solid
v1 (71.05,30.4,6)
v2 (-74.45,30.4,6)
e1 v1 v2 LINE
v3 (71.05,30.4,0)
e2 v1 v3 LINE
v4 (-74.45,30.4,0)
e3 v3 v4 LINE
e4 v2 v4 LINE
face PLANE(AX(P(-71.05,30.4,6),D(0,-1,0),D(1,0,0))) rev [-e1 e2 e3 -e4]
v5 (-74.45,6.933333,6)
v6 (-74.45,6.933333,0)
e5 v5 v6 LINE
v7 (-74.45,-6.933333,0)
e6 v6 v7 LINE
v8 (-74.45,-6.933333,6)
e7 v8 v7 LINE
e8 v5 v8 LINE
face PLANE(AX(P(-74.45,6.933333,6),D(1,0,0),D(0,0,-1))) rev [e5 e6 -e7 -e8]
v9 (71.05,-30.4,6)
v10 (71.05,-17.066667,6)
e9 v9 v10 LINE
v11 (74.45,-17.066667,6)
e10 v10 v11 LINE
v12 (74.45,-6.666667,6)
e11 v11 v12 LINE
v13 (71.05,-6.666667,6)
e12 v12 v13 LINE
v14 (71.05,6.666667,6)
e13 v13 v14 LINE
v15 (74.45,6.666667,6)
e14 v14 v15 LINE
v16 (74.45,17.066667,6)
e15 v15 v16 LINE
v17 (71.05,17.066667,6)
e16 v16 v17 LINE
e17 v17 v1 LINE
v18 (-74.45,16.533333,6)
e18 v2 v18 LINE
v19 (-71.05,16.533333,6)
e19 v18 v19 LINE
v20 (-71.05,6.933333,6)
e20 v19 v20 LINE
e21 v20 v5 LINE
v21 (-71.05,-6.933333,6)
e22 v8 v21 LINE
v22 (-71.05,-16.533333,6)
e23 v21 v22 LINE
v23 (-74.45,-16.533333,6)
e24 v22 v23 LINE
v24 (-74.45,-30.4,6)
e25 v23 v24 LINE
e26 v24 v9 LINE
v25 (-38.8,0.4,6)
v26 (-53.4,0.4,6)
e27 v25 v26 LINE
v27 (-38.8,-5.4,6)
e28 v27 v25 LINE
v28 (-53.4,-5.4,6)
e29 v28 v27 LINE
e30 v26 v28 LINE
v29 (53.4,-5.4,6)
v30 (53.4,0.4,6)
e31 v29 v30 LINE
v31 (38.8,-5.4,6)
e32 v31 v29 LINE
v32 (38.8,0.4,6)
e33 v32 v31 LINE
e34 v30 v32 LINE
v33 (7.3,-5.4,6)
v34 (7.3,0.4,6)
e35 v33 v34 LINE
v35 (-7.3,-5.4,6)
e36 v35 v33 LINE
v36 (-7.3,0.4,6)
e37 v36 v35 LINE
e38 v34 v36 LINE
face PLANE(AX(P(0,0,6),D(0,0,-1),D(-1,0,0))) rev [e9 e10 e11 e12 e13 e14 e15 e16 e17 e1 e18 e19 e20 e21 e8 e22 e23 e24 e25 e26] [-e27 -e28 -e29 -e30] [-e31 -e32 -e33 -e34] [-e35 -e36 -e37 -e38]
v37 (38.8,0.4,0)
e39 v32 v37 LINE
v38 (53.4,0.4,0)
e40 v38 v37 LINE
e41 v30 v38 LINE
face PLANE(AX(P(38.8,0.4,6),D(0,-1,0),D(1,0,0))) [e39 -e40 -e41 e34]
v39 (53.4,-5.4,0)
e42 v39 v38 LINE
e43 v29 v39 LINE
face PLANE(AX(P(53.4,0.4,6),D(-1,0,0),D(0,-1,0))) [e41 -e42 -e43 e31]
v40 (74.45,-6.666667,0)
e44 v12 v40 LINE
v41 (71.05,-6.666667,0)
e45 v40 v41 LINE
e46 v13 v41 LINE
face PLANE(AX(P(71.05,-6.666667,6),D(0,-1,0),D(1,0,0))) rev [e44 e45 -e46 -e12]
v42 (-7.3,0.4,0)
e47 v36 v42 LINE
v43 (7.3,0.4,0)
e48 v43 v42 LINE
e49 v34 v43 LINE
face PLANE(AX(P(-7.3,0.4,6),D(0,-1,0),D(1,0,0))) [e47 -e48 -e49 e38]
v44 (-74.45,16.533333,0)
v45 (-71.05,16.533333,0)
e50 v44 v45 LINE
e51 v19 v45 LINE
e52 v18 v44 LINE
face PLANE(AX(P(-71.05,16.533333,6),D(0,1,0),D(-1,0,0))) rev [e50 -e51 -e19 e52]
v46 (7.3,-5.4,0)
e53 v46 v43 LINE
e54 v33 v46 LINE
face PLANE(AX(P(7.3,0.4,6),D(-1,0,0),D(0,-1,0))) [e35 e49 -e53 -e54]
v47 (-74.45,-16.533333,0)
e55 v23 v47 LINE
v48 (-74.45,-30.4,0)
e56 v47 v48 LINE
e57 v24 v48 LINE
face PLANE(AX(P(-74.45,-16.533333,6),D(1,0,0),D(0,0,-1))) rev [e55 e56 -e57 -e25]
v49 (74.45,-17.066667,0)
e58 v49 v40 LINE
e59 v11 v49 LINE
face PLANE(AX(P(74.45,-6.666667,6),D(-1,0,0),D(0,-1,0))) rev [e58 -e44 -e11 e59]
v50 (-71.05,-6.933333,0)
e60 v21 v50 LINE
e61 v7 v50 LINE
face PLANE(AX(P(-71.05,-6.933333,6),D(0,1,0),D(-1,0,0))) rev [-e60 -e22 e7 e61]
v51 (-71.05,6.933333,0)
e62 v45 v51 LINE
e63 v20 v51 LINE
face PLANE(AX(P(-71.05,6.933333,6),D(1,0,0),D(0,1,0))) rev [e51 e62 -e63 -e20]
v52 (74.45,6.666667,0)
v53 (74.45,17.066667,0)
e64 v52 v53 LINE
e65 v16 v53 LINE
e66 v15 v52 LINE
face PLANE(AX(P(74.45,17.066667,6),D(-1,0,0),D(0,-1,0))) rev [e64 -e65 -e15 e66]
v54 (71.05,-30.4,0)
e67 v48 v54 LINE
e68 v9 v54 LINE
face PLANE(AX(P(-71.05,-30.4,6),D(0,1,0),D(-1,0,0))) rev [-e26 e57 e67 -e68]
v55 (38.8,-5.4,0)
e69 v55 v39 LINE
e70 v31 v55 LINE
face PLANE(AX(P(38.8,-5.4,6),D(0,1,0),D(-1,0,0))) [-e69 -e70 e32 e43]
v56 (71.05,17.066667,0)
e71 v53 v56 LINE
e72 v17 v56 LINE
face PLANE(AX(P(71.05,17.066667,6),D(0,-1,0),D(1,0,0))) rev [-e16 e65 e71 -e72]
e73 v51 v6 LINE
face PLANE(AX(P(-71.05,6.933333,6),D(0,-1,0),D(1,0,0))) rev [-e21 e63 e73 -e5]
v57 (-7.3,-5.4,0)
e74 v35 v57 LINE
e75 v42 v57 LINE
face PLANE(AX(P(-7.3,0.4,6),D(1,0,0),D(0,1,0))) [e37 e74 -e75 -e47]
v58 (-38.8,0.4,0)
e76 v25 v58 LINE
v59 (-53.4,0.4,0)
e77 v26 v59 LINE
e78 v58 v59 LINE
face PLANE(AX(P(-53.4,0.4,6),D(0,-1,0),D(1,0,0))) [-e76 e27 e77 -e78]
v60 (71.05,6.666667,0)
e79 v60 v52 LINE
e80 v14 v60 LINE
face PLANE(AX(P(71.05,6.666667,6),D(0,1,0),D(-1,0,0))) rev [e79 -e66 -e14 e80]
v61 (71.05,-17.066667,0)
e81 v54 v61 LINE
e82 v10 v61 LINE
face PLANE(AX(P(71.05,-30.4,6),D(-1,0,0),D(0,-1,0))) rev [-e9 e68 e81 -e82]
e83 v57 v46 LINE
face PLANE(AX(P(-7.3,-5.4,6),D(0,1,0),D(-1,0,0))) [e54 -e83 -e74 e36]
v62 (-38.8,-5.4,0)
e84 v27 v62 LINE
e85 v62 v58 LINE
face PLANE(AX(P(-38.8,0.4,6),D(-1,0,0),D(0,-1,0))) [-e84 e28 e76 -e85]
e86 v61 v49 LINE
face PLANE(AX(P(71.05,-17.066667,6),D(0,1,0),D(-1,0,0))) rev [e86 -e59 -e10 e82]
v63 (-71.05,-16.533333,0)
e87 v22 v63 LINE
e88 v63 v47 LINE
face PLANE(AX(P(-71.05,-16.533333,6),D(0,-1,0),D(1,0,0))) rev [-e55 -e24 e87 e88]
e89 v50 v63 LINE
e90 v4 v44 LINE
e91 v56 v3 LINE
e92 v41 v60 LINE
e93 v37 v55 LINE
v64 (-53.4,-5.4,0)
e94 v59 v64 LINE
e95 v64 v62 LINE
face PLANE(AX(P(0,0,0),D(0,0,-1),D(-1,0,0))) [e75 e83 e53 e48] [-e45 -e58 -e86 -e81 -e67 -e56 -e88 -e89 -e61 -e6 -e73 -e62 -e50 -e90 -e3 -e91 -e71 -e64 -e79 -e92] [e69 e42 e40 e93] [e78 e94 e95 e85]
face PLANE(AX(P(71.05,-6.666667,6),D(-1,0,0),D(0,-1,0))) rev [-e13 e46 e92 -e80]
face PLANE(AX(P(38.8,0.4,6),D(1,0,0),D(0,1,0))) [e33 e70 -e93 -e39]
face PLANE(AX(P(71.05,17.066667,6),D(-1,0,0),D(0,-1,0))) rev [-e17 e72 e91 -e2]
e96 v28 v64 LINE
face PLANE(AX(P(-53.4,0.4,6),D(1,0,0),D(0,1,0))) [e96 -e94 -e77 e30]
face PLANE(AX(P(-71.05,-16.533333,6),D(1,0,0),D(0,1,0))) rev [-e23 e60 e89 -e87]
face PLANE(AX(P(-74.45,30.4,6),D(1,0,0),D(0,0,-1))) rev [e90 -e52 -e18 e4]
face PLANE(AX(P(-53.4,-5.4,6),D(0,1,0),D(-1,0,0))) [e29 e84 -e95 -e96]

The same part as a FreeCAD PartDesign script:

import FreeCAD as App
import Part
import Sketcher
from FreeCAD import Vector


def add_polygon(sketch, points):
    """Adds a closed chain of lines whose ends are joined by coincident constraints."""
    first, n = sketch.GeometryCount, len(points)
    for a, b in zip(points, points[1:] + points[:1]):
        sketch.addGeometry(Part.LineSegment(App.Vector(*a, 0), App.Vector(*b, 0)), False)
    for i in range(n):
        sketch.addConstraint(Sketcher.Constraint("Coincident", first + i, 2, first + (i + 1) % n, 1))

doc = App.newDocument("Part")
body = doc.addObject("PartDesign::Body", "Body")

# Sketch on XY plane
sketch1 = body.newObject("Sketcher::SketchObject", "Sketch")
sketch1.AttachmentSupport = (doc.getObject("XY_Plane"), [""])
sketch1.MapMode = "FlatFace"
add_polygon(sketch1, [(71.05, -30.4), (71.05, -17.066667), (74.45, -17.066667), (74.45, -6.666667), (71.05, -6.666667), (71.05, 6.666667), (74.45, 6.666667), (74.45, 17.066667), (71.05, 17.066667), (71.05, 30.4), (-74.45, 30.4), (-74.45, 16.533333), (-71.05, 16.533333), (-71.05, 6.933333), (-74.45, 6.933333), (-74.45, -6.933333), (-71.05, -6.933333), (-71.05, -16.533333), (-74.45, -16.533333), (-74.45, -30.4)])  # lines 0-19
add_polygon(sketch1, [(-38.8, -5.4), (-53.4, -5.4), (-53.4, 0.4), (-38.8, 0.4)])  # lines 20-23
add_polygon(sketch1, [(7.3, -5.4), (-7.3, -5.4), (-7.3, 0.4), (7.3, 0.4)])  # lines 24-27
add_polygon(sketch1, [(53.4, -5.4), (38.8, -5.4), (38.8, 0.4), (53.4, 0.4)])  # lines 28-31
sketch1.addConstraint([
    Sketcher.Constraint("Vertical", 0),
    Sketcher.Constraint("Horizontal", 1),
    Sketcher.Constraint("Vertical", 2),
    Sketcher.Constraint("Horizontal", 3),
    Sketcher.Constraint("Vertical", 4),
    Sketcher.Constraint("Horizontal", 5),
    Sketcher.Constraint("Vertical", 6),
    Sketcher.Constraint("Horizontal", 7),
    Sketcher.Constraint("Vertical", 8),
    Sketcher.Constraint("Horizontal", 9),
    Sketcher.Constraint("Vertical", 10),
    Sketcher.Constraint("Horizontal", 11),
    Sketcher.Constraint("Vertical", 12),
    Sketcher.Constraint("Horizontal", 13),
    Sketcher.Constraint("Vertical", 14),
    Sketcher.Constraint("Horizontal", 15),
    Sketcher.Constraint("Vertical", 16),
    Sketcher.Constraint("Horizontal", 17),
    Sketcher.Constraint("Vertical", 18),
    Sketcher.Constraint("Horizontal", 19),
    Sketcher.Constraint("Horizontal", 20),
    Sketcher.Constraint("Vertical", 21),
    Sketcher.Constraint("Horizontal", 22),
    Sketcher.Constraint("Vertical", 23),
    Sketcher.Constraint("Horizontal", 24),
    Sketcher.Constraint("Vertical", 25),
    Sketcher.Constraint("Horizontal", 26),
    Sketcher.Constraint("Vertical", 27),
    Sketcher.Constraint("Horizontal", 28),
    Sketcher.Constraint("Vertical", 29),
    Sketcher.Constraint("Horizontal", 30),
    Sketcher.Constraint("Vertical", 31),
    Sketcher.Constraint("Symmetric", 23, 2, 28, 2, -2),
    Sketcher.Constraint("Symmetric", 21, 2, 30, 2, -2),
    Sketcher.Constraint("Symmetric", 2, 2, 5, 2, -1),
    Sketcher.Constraint("Symmetric", 0, 2, 7, 2, -1),
    Sketcher.Constraint("Symmetric", 12, 2, 15, 2, -1),
    Sketcher.Constraint("Symmetric", 10, 2, 17, 2, -1),
    Sketcher.Constraint("Horizontal", 23, 2, 24, 2),
    Sketcher.Constraint("Horizontal", 22, 2, 25, 2),
    Sketcher.Constraint("Vertical", 0, 2, 3, 2),
    Sketcher.Constraint("Vertical", 10, 2, 13, 2),
    Sketcher.Constraint("Equal", 7, 11),
    Sketcher.Constraint("Equal", 22, 24),
    Sketcher.Constraint("Equal", 0, 4),
    Sketcher.Constraint("Equal", 4, 8),
    Sketcher.Constraint("Equal", 10, 14),
    Sketcher.Constraint("DistanceX", 1, 1, 1, 2, 3.4),
    Sketcher.Constraint("DistanceX", 9, 2, 9, 1, 145.5),
    Sketcher.Constraint("DistanceX", 20, 2, 20, 1, 14.6),
    Sketcher.Constraint("DistanceY", 2, 1, 2, 2, 10.4),
    Sketcher.Constraint("DistanceY", 12, 2, 12, 1, 9.6),
    Sketcher.Constraint("DistanceY", 21, 1, 21, 2, 5.8),
    Sketcher.Constraint("DistanceY", -1, 1, 8, 2, 30.4),
    Sketcher.Constraint("DistanceX", 20, 2, -1, 1, 53.4),
    Sketcher.Constraint("DistanceY", 20, 2, -1, 1, 5.4),
    Sketcher.Constraint("DistanceX", 24, 2, -1, 1, 7.3),
    Sketcher.Constraint("DistanceX", -1, 1, 0, 2, 71.05),
])
pad1 = body.newObject("PartDesign::Pad", "Pad")
pad1.Profile = sketch1
pad1.Length = 6

doc.recompute()
